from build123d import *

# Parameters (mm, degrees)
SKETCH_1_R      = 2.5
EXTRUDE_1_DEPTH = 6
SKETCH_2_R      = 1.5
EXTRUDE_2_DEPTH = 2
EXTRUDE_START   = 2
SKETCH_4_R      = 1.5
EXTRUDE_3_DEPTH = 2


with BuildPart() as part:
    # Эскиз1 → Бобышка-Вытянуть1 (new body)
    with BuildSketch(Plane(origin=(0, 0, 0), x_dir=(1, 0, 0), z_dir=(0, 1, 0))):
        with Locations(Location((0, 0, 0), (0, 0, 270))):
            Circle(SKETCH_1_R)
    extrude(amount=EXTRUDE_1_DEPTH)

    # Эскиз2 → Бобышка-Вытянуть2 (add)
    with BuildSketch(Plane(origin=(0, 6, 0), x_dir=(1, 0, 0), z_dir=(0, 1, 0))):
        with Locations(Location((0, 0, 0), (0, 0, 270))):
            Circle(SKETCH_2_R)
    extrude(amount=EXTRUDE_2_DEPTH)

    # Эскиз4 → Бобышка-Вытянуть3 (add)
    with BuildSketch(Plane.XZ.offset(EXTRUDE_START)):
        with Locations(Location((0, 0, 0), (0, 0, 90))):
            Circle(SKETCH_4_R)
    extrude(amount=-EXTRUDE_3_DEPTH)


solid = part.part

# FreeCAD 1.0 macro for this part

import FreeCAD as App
import Part
import Sketcher
from FreeCAD import Vector
Q = App.Units.Quantity

doc = App.newDocument("Part")
params = doc.addObject("Spreadsheet::Sheet", "Params")
for row, (alias, value) in enumerate([
    ("sketch1_diameter", "5 mm"),
    ("pad1_length", "6 mm"),
    ("sketch2_diameter", "3 mm"),
    ("pad2_length", "2 mm"),
    ("sketch3_diameter", "3 mm"),
    ("pad3_length", "2 mm"),
], start=1):
    params.set(f"A{row}", alias)
    params.set(f"B{row}", "=" + value)
    params.setAlias(f"B{row}", alias)

body = doc.addObject("PartDesign::Body", "Body")

sketch1 = body.newObject("Sketcher::SketchObject", "Sketch")
sketch1.AttachmentSupport = (doc.getObject("XZ_Plane"), [""])
sketch1.MapMode = "FlatFace"
sketch1.addGeometry(Part.Circle(Vector(0, 0, 0), Vector(0, 0, 1), 2.5), False)
sketch1.addConstraint([
    Sketcher.Constraint("Coincident", 0, 3, -1, 1),
    Sketcher.Constraint("Diameter", 0, Q("5 mm")),
])
sketch1.setExpression("Constraints[1]", "Params.sketch1_diameter")
pad1 = body.newObject("PartDesign::Pad", "Pad")
pad1.Profile = sketch1
pad1.setExpression("Length", "Params.pad1_length")
pad1.Reversed = True

sketch2 = body.newObject("Sketcher::SketchObject", "Sketch001")
sketch2.AttachmentSupport = (doc.getObject("XZ_Plane"), [""])
sketch2.MapMode = "FlatFace"
sketch2.AttachmentOffset = App.Placement(Vector(0, 0, -6), App.Rotation())
sketch2.addGeometry(Part.Circle(Vector(0, 0, 0), Vector(0, 0, 1), 1.5), False)
sketch2.addConstraint([
    Sketcher.Constraint("Coincident", 0, 3, -1, 1),
    Sketcher.Constraint("Diameter", 0, Q("3 mm")),
])
sketch2.setExpression("Constraints[1]", "Params.sketch2_diameter")
pad2 = body.newObject("PartDesign::Pad", "Pad001")
pad2.Profile = sketch2
pad2.setExpression("Length", "Params.pad2_length")
pad2.Reversed = True

sketch3 = body.newObject("Sketcher::SketchObject", "Sketch002")
sketch3.AttachmentSupport = (doc.getObject("XZ_Plane"), [""])
sketch3.MapMode = "FlatFace"
sketch3.AttachmentOffset = App.Placement(Vector(0, 0, 2), App.Rotation())
sketch3.addGeometry(Part.Circle(Vector(0, 0, 0), Vector(0, 0, 1), 1.5), False)
sketch3.addConstraint([
    Sketcher.Constraint("Coincident", 0, 3, -1, 1),
    Sketcher.Constraint("Diameter", 0, Q("3 mm")),
])
sketch3.setExpression("Constraints[1]", "Params.sketch3_diameter")
pad3 = body.newObject("PartDesign::Pad", "Pad002")
pad3.Profile = sketch3
pad3.setExpression("Length", "Params.pad3_length")
pad3.Reversed = True

doc.recompute()
